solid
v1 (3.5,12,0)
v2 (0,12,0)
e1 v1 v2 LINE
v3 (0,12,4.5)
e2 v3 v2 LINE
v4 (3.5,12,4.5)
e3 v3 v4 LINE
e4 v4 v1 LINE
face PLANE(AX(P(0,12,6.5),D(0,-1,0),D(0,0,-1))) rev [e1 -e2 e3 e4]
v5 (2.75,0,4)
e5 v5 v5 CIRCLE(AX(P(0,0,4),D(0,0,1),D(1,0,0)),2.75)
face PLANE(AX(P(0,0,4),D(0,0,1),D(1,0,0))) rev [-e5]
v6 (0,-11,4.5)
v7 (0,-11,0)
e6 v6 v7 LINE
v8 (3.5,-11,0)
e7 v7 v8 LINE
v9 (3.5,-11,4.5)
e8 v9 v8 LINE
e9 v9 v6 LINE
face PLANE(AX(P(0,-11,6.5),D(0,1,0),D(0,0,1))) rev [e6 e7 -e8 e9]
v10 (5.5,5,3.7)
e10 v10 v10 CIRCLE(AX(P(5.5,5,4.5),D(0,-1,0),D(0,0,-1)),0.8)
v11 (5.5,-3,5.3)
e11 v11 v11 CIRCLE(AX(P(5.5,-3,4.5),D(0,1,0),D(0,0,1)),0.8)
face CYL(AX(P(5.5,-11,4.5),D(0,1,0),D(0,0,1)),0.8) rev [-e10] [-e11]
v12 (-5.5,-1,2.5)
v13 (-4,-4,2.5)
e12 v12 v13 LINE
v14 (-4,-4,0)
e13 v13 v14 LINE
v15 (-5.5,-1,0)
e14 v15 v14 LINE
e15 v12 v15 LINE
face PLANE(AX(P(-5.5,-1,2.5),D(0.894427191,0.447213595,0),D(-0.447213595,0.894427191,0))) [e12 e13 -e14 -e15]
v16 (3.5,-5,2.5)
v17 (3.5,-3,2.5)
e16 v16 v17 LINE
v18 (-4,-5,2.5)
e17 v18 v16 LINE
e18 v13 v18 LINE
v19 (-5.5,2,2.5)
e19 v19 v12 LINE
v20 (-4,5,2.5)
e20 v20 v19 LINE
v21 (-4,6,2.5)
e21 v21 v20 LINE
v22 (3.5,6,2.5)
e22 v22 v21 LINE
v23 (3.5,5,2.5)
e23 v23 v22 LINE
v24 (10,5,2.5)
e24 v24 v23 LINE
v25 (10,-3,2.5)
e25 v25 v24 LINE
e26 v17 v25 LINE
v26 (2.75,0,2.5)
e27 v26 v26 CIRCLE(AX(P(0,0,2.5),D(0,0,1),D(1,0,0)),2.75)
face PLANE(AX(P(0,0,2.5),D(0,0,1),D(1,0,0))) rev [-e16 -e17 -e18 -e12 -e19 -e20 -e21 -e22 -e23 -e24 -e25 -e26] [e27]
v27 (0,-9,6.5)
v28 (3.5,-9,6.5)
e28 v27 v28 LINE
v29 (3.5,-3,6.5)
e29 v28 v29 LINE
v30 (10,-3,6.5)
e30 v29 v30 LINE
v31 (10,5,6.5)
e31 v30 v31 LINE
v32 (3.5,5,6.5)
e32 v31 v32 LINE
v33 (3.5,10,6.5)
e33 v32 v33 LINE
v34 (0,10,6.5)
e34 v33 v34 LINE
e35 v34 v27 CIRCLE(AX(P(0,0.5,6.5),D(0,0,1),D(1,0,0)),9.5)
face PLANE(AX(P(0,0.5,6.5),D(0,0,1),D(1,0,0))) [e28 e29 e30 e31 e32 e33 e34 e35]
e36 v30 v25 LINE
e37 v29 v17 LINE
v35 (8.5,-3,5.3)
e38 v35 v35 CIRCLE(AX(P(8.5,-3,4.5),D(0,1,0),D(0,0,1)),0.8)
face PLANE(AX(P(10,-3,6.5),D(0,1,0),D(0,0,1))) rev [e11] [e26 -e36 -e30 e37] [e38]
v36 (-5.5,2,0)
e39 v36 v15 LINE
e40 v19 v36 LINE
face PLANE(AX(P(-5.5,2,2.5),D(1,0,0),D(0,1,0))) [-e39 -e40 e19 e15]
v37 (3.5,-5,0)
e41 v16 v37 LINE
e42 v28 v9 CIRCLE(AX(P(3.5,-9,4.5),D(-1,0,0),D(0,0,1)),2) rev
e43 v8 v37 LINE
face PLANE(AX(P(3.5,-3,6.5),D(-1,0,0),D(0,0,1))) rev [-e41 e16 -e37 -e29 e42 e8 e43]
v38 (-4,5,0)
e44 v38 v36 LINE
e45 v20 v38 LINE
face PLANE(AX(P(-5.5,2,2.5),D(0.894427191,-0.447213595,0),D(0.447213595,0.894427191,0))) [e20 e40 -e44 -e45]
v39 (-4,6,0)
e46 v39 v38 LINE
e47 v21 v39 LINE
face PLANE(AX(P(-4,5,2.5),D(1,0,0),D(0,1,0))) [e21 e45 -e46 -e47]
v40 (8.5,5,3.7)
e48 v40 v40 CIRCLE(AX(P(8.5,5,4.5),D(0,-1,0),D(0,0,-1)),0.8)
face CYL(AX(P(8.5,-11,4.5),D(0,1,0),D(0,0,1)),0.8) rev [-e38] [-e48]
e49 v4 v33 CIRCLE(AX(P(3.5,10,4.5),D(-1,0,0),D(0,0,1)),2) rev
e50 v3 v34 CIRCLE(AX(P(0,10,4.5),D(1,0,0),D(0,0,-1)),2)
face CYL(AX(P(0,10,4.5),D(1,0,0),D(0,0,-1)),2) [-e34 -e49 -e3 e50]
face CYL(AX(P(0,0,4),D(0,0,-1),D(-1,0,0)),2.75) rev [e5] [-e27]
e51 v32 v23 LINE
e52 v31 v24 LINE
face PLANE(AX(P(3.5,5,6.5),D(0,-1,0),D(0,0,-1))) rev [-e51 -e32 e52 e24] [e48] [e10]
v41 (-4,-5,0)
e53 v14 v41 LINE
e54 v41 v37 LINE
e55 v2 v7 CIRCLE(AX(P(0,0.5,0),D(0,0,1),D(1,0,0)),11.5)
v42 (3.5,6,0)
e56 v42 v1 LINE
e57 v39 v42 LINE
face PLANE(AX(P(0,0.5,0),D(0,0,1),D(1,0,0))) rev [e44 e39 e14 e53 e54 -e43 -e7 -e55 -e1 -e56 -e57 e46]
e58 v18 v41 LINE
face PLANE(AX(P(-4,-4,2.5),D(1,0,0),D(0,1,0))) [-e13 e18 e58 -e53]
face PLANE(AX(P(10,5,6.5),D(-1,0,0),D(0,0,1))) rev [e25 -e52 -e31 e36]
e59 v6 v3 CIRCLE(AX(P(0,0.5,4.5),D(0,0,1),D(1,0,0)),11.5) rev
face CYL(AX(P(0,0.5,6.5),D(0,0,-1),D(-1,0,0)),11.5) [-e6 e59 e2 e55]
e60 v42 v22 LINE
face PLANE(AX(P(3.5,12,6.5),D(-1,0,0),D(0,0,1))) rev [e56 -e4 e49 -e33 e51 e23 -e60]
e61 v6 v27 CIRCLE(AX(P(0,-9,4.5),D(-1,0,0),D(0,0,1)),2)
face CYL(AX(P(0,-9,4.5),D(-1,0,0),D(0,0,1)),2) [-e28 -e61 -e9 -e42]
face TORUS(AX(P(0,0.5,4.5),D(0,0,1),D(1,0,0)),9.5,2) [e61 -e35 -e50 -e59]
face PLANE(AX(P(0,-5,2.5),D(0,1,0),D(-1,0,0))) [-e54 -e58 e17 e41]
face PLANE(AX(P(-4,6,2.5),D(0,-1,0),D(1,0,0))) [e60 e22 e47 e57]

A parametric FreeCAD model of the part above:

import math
import FreeCAD as App
import Part
import Sketcher

V = App.Vector
Q = App.Units.Quantity


def edges_at(feature, points):
    """Names of the edges that pass closest to the given points."""
    edges = feature.Shape.Edges
    near = lambda p: min(range(len(edges)), key=lambda i: edges[i].distToShape(Part.Vertex(*p))[0])
    return sorted({f"Edge{near(p) + 1}" for p in points})

doc = App.newDocument("Part")
body = doc.addObject("PartDesign::Body", "Body")

sketch1 = body.newObject("Sketcher::SketchObject", "Sketch")
sketch1.AttachmentSupport = (doc.getObject("XY_Plane"), [""])
sketch1.MapMode = "FlatFace"
sketch1.addGeometry(Part.LineSegment(V(3.5, 5, 0), V(3.5, 12, 0)), False)
sketch1.addGeometry(Part.LineSegment(V(3.5, 12, 0), V(0, 12, 0)), False)
sketch1.addGeometry(Part.ArcOfCircle(Part.Circle(V(0, 0.5, 0), V(0, 0, 1), 11.5), math.radians(90), math.radians(270)), False)
sketch1.addGeometry(Part.LineSegment(V(0, -11, 0), V(3.5, -11, 0)), False)
sketch1.addGeometry(Part.LineSegment(V(3.5, -11, 0), V(3.5, -3, 0)), False)
sketch1.addGeometry(Part.LineSegment(V(3.5, -3, 0), V(10, -3, 0)), False)
sketch1.addGeometry(Part.LineSegment(V(10, -3, 0), V(10, 5, 0)), False)
sketch1.addGeometry(Part.LineSegment(V(10, 5, 0), V(3.5, 5, 0)), False)
sketch1.addConstraint(Sketcher.Constraint("Coincident", 0, 2, 1, 1))
sketch1.addConstraint(Sketcher.Constraint("Tangent", 1, 2, 2, 1))
sketch1.addConstraint(Sketcher.Constraint("Tangent", 2, 2, 3, 1))
sketch1.addConstraint(Sketcher.Constraint("Coincident", 3, 2, 4, 1))
sketch1.addConstraint(Sketcher.Constraint("Coincident", 4, 2, 5, 1))
sketch1.addConstraint(Sketcher.Constraint("Coincident", 5, 2, 6, 1))
sketch1.addConstraint(Sketcher.Constraint("Coincident", 6, 2, 7, 1))
sketch1.addConstraint(Sketcher.Constraint("Coincident", 7, 2, 0, 1))
sketch1.addConstraint(Sketcher.Constraint("Vertical", 0))
sketch1.addConstraint(Sketcher.Constraint("Horizontal", 1))
sketch1.addConstraint(Sketcher.Constraint("Horizontal", 3))
sketch1.addConstraint(Sketcher.Constraint("Vertical", 4))
sketch1.addConstraint(Sketcher.Constraint("Horizontal", 5))
sketch1.addConstraint(Sketcher.Constraint("Vertical", 6))
sketch1.addConstraint(Sketcher.Constraint("Horizontal", 7))
sketch1.addConstraint(Sketcher.Constraint("PointOnObject", 2, 3, -2))
sketch1.addConstraint(Sketcher.Constraint("Vertical", 0, 2, 3, 2))
sketch1.addConstraint(Sketcher.Constraint("Equal", 4, 6))
sketch1.addConstraint(Sketcher.Constraint("Radius", 2, Q("11.5 mm")))
sketch1.addConstraint(Sketcher.Constraint("DistanceY", 0, 1, 0, 2, Q("7 mm")))
sketch1.addConstraint(Sketcher.Constraint("DistanceX", 1, 2, 1, 1, Q("3.5 mm")))
sketch1.addConstraint(Sketcher.Constraint("DistanceX", 5, 1, 5, 2, Q("6.5 mm")))
sketch1.addConstraint(Sketcher.Constraint("DistanceY", -1, 1, 0, 2, Q("12 mm")))
pad1 = body.newObject("PartDesign::Pad", "Pad")
pad1.Profile = sketch1
pad1.Length = 6.5

sketch2 = body.newObject("Sketcher::SketchObject", "Sketch001")
sketch2.AttachmentSupport = (doc.getObject("XZ_Plane"), [""])
sketch2.MapMode = "FlatFace"
sketch2.AttachmentOffset = App.Placement(V(0, 0, -11), App.Rotation())
sketch2.addGeometry(Part.Circle(V(8.5, 4.5, 0), V(0, 0, 1), 0.8), False)
sketch2.addGeometry(Part.Circle(V(5.5, 4.5, 0), V(0, 0, 1), 0.8), False)
sketch2.addConstraint(Sketcher.Constraint("Equal", 0, 1))
sketch2.addConstraint(Sketcher.Constraint("Horizontal", 0, 3, 1, 3))
sketch2.addConstraint(Sketcher.Constraint("Diameter", 0, Q("1.6 mm")))
sketch2.addConstraint(Sketcher.Constraint("DistanceX", 1, 3, 0, 3, Q("3 mm")))
sketch2.addConstraint(Sketcher.Constraint("DistanceX", -1, 1, 0, 3, Q("8.5 mm")))
sketch2.addConstraint(Sketcher.Constraint("DistanceY", -1, 1, 0, 3, Q("4.5 mm")))
pocket1 = body.newObject("PartDesign::Pocket", "Pocket")
pocket1.Profile = sketch2
pocket1.Type = "ThroughAll"
pocket1.Reversed = True
doc.recompute()

fillet = body.newObject("PartDesign::Fillet", "Fillet")
fillet.Base = (pocket1, edges_at(pocket1, [(1.75, 12, 6.5), (-11.5, 0.5, 6.5), (1.75, -11, 6.5)]))
fillet.Radius = 2

sketch3 = body.newObject("Sketcher::SketchObject", "Sketch002")
sketch3.AttachmentSupport = (doc.getObject("XY_Plane"), [""])
sketch3.MapMode = "FlatFace"
sketch3.addGeometry(Part.LineSegment(V(-5.5, -1, 0), V(-4, -4, 0)), False)
sketch3.addGeometry(Part.LineSegment(V(-4, -4, 0), V(-4, -5, 0)), False)
sketch3.addGeometry(Part.LineSegment(V(-4, -5, 0), V(4.25, -5, 0)), False)
sketch3.addGeometry(Part.LineSegment(V(4.25, -5, 0), V(4.25, -4, 0)), False)
sketch3.addGeometry(Part.LineSegment(V(4.25, -4, 0), V(10, -4, 0)), False)
sketch3.addGeometry(Part.LineSegment(V(10, -4, 0), V(10, 5, 0)), False)
sketch3.addGeometry(Part.LineSegment(V(10, 5, 0), V(4.25, 5, 0)), False)
sketch3.addGeometry(Part.LineSegment(V(4.25, 5, 0), V(4.25, 6, 0)), False)
sketch3.addGeometry(Part.LineSegment(V(4.25, 6, 0), V(-4, 6, 0)), False)
sketch3.addGeometry(Part.LineSegment(V(-4, 6, 0), V(-4, 5, 0)), False)
sketch3.addGeometry(Part.LineSegment(V(-4, 5, 0), V(-5.5, 2, 0)), False)
sketch3.addGeometry(Part.LineSegment(V(-5.5, 2, 0), V(-5.5, -1, 0)), False)
sketch3.addConstraint(Sketcher.Constraint("Coincident", 0, 2, 1, 1))
sketch3.addConstraint(Sketcher.Constraint("Coincident", 1, 2, 2, 1))
sketch3.addConstraint(Sketcher.Constraint("Coincident", 2, 2, 3, 1))
sketch3.addConstraint(Sketcher.Constraint("Coincident", 3, 2, 4, 1))
sketch3.addConstraint(Sketcher.Constraint("Coincident", 4, 2, 5, 1))
sketch3.addConstraint(Sketcher.Constraint("Coincident", 5, 2, 6, 1))
sketch3.addConstraint(Sketcher.Constraint("Coincident", 6, 2, 7, 1))
sketch3.addConstraint(Sketcher.Constraint("Coincident", 7, 2, 8, 1))
sketch3.addConstraint(Sketcher.Constraint("Coincident", 8, 2, 9, 1))
sketch3.addConstraint(Sketcher.Constraint("Coincident", 9, 2, 10, 1))
sketch3.addConstraint(Sketcher.Constraint("Coincident", 10, 2, 11, 1))
sketch3.addConstraint(Sketcher.Constraint("Coincident", 11, 2, 0, 1))
sketch3.addConstraint(Sketcher.Constraint("Vertical", 1))
sketch3.addConstraint(Sketcher.Constraint("Horizontal", 2))
sketch3.addConstraint(Sketcher.Constraint("Vertical", 3))
sketch3.addConstraint(Sketcher.Constraint("Horizontal", 4))
sketch3.addConstraint(Sketcher.Constraint("Vertical", 5))
sketch3.addConstraint(Sketcher.Constraint("Horizontal", 6))
sketch3.addConstraint(Sketcher.Constraint("Vertical", 7))
sketch3.addConstraint(Sketcher.Constraint("Horizontal", 8))
sketch3.addConstraint(Sketcher.Constraint("Vertical", 9))
sketch3.addConstraint(Sketcher.Constraint("Vertical", 11))
sketch3.addConstraint(Sketcher.Constraint("Symmetric", 2, 2, 6, 2, -1))
sketch3.addConstraint(Sketcher.Constraint("Symmetric", 1, 2, 9, 2, -1))
sketch3.addConstraint(Sketcher.Constraint("Horizontal", 0, 2, 3, 2))
sketch3.addConstraint(Sketcher.Constraint("Equal", 3, 7))
sketch3.addConstraint(Sketcher.Constraint("Equal", 0, 10))
sketch3.addConstraint(Sketcher.Constraint("DistanceY", 1, 2, 1, 1, Q("1 mm")))
sketch3.addConstraint(Sketcher.Constraint("DistanceY", 5, 1, 5, 2, Q("9 mm")))
sketch3.addConstraint(Sketcher.Constraint("DistanceY", 11, 2, 11, 1, Q("3 mm")))
sketch3.addConstraint(Sketcher.Constraint("DistanceX", 0, 2, -1, 1, Q("4 mm")))
sketch3.addConstraint(Sketcher.Constraint("DistanceX", -1, 1, 4, 2, Q("10 mm")))
sketch3.addConstraint(Sketcher.Constraint("DistanceX", 2, 1, 2, 2, Q("8.25 mm")))
sketch3.addConstraint(Sketcher.Constraint("DistanceX", 10, 2, -1, 1, Q("5.5 mm")))
pocket2 = body.newObject("PartDesign::Pocket", "Pocket001")
pocket2.Profile = sketch3
pocket2.Length = 2.5
pocket2.Reversed = True

sketch4 = body.newObject("Sketcher::SketchObject", "Sketch003")
sketch4.AttachmentSupport = (doc.getObject("XY_Plane"), [""])
sketch4.MapMode = "FlatFace"
sketch4.AttachmentOffset = App.Placement(V(0, 0, 2.5), App.Rotation())
sketch4.addGeometry(Part.Circle(V(0, 0, 0), V(0, 0, 1), 2.75), False)
sketch4.addConstraint(Sketcher.Constraint("Coincident", 0, 3, -1, 1))
sketch4.addConstraint(Sketcher.Constraint("Diameter", 0, Q("5.5 mm")))
pocket3 = body.newObject("PartDesign::Pocket", "Pocket002")
pocket3.Profile = sketch4
pocket3.Length = 1.5
pocket3.Reversed = True

doc.recompute()
